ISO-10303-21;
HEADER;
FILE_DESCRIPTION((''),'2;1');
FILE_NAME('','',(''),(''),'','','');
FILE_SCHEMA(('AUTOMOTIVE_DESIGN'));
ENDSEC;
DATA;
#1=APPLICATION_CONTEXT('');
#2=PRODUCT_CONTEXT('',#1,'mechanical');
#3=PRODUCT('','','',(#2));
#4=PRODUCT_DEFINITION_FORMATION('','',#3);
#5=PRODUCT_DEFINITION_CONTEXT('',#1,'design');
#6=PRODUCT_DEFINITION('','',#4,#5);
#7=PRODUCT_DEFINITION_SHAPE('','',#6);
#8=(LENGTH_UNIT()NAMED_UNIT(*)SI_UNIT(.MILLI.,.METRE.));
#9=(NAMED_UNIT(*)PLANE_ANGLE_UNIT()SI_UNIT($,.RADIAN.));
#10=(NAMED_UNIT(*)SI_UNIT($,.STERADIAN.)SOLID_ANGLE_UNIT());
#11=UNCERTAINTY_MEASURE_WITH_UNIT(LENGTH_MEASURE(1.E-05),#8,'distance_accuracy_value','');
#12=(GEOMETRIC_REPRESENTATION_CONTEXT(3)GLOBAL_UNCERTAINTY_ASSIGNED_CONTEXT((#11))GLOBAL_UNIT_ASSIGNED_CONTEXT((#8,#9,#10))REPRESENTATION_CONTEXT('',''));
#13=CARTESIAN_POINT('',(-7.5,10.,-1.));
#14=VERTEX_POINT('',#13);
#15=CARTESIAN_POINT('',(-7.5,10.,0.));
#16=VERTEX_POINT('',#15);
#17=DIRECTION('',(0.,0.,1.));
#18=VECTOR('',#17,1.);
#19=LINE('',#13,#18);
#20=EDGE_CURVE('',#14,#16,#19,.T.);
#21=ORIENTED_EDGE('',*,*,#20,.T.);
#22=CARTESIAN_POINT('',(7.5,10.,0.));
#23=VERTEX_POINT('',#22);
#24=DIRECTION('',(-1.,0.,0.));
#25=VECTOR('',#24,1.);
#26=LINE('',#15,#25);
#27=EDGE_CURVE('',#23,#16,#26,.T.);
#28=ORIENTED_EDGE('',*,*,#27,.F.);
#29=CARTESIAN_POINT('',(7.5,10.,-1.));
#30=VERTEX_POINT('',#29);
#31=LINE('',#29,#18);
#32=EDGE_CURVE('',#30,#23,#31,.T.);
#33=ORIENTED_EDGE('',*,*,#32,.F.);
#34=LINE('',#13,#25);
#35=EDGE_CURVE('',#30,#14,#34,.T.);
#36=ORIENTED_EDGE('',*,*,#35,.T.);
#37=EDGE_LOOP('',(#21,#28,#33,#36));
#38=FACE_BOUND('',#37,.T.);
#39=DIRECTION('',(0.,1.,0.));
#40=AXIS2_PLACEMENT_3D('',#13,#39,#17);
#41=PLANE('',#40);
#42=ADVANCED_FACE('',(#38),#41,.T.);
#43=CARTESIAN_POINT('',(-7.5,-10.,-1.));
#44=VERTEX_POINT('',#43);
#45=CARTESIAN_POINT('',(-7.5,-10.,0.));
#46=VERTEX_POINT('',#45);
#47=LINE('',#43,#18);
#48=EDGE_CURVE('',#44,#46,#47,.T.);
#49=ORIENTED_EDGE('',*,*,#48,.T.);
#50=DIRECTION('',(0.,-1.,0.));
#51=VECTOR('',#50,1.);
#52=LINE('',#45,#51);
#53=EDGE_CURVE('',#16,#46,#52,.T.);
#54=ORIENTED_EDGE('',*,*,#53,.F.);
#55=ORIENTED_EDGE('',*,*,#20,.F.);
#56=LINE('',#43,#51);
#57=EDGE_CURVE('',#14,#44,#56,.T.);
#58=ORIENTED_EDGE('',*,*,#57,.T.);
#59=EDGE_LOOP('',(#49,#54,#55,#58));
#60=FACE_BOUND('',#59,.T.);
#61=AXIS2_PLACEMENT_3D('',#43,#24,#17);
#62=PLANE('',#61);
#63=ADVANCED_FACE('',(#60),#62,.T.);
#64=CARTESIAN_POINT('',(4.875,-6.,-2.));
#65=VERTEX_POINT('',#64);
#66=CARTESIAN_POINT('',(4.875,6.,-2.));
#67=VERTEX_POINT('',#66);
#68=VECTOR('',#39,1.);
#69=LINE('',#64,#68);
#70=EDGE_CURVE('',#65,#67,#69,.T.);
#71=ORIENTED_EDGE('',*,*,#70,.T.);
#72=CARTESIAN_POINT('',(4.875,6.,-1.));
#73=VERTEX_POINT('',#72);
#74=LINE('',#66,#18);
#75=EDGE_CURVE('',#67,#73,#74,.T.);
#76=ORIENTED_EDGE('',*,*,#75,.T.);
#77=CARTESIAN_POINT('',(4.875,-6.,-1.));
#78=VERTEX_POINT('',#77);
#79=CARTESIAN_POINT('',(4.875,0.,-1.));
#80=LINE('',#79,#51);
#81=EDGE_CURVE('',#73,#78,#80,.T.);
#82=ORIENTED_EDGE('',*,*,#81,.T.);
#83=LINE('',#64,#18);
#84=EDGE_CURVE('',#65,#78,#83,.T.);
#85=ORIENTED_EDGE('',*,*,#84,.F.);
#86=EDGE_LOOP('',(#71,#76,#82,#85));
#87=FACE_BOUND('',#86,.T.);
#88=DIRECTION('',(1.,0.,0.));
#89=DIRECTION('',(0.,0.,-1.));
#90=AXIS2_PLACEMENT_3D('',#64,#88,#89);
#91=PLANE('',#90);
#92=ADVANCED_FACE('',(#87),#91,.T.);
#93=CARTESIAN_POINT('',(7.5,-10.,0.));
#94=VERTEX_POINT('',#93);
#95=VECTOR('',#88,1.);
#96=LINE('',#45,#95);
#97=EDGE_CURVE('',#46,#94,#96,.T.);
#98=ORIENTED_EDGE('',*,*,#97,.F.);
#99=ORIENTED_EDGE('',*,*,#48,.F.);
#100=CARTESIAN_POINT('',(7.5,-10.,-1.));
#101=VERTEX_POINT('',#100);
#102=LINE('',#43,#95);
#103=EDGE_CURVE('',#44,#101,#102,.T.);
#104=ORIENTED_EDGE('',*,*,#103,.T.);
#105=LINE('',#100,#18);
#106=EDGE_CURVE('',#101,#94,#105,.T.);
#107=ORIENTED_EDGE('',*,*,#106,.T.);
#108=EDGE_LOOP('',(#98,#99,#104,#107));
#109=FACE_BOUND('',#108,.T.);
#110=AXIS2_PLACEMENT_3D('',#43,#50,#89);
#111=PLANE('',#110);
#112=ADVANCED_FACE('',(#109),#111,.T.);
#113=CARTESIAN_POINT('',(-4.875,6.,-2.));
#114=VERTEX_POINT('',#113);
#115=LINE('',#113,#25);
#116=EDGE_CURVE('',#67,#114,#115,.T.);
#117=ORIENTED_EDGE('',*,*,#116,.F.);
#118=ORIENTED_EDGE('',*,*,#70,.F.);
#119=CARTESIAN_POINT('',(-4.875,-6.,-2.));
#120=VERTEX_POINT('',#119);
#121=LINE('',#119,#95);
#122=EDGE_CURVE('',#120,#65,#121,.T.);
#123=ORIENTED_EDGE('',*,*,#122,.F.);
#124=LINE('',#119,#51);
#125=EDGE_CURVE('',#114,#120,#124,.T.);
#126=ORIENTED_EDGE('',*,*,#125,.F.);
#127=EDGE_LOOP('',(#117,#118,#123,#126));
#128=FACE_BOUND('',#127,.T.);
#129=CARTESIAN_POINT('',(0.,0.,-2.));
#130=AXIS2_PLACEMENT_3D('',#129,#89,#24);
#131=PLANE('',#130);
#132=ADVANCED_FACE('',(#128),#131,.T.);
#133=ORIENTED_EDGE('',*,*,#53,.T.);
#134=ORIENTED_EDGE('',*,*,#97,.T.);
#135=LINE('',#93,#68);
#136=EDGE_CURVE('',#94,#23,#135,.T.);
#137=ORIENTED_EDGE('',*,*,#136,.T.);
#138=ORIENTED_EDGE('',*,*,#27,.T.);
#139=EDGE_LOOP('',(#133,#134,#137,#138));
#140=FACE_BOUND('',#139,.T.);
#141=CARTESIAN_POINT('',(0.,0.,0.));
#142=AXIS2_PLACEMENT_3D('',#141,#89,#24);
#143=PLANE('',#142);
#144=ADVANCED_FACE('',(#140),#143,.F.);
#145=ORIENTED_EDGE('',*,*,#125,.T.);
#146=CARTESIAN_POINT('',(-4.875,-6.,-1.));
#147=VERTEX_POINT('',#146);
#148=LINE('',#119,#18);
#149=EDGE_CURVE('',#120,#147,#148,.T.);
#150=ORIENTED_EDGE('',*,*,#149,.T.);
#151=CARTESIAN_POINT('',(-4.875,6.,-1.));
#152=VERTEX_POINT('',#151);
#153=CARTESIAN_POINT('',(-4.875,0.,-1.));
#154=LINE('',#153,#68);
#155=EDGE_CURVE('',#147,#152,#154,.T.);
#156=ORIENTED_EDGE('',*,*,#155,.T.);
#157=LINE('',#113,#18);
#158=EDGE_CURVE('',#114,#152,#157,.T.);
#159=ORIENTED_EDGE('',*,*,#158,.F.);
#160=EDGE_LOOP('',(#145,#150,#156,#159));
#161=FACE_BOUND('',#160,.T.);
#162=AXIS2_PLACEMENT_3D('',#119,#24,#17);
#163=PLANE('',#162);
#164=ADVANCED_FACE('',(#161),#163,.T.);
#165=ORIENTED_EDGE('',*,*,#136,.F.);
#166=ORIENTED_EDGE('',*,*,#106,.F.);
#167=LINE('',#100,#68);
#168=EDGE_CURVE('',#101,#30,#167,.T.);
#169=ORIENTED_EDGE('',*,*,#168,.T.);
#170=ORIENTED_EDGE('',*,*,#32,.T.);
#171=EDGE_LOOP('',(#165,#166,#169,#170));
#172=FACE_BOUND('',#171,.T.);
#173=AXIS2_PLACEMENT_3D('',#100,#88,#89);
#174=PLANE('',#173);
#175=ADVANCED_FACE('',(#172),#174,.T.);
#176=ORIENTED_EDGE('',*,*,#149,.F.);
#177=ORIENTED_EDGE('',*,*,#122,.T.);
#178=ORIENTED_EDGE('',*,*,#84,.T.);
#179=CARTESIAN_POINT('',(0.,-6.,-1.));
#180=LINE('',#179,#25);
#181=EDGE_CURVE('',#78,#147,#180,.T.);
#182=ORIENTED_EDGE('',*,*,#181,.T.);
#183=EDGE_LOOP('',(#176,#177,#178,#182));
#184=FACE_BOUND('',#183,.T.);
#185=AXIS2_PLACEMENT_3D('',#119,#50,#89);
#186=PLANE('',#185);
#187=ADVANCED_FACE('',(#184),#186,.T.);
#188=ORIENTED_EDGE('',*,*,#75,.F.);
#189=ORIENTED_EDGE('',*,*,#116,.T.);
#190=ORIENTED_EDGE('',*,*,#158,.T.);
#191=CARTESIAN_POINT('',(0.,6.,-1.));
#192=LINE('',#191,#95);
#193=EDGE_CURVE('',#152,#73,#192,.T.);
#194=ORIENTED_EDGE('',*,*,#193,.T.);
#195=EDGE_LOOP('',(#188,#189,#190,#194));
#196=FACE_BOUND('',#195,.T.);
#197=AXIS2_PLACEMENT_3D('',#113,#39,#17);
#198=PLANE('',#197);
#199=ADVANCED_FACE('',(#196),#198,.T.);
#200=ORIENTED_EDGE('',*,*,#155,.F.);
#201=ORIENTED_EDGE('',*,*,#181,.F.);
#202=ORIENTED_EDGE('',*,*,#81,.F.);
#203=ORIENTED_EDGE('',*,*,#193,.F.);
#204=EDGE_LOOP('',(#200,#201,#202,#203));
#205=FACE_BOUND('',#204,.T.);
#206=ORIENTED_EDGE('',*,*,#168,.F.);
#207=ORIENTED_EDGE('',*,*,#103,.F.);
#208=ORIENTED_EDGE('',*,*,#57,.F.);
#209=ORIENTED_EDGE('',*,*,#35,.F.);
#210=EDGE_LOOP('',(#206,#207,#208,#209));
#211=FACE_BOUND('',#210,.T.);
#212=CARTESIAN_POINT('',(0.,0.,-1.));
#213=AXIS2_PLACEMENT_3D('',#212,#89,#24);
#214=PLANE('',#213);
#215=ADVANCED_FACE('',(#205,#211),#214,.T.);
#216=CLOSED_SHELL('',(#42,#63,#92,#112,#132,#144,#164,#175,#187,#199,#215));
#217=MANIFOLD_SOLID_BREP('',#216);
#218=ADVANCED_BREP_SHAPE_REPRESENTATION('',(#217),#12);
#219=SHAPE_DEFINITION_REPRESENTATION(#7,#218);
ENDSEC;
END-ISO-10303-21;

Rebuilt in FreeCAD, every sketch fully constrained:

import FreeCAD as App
import Part
import Sketcher


def add_polygon(sketch, points):
    """Adds a closed chain of lines whose ends are joined by coincident constraints."""
    first, n = sketch.GeometryCount, len(points)
    for a, b in zip(points, points[1:] + points[:1]):
        sketch.addGeometry(Part.LineSegment(App.Vector(*a, 0), App.Vector(*b, 0)), False)
    for i in range(n):
        sketch.addConstraint(Sketcher.Constraint("Coincident", first + i, 2, first + (i + 1) % n, 1))

doc = App.newDocument("Part")
body = doc.addObject("PartDesign::Body", "Body")

# Sketch on XY plane
sketch1 = body.newObject("Sketcher::SketchObject", "Sketch")
sketch1.AttachmentSupport = (doc.getObject("XY_Plane"), [""])
sketch1.MapMode = "FlatFace"
add_polygon(sketch1, [(-8, 10), (-8, -10), (8, -10), (8, 10)])  # lines 0-3
sketch1.addConstraint([
    Sketcher.Constraint("Vertical", 0),
    Sketcher.Constraint("Horizontal", 1),
    Sketcher.Constraint("Vertical", 2),
    Sketcher.Constraint("Horizontal", 3),
    Sketcher.Constraint("Symmetric", 0, 2, 2, 2, -1, 1),
    Sketcher.Constraint("DistanceX", 1, 1, 1, 2, 15.0),
    Sketcher.Constraint("DistanceY", 0, 2, 0, 1, 20.0),
])
pad1 = body.newObject("PartDesign::Pad", "Pad")
pad1.Profile = sketch1
pad1.Length = 1
pad1.Reversed = True

# Sketch on XY plane
sketch2 = body.newObject("Sketcher::SketchObject", "Sketch001")
sketch2.AttachmentSupport = (doc.getObject("XY_Plane"), [""])
sketch2.MapMode = "FlatFace"
add_polygon(sketch2, [(-5, 6), (-5, -6), (5, -6), (5, 6)])  # lines 0-3
sketch2.addConstraint([
    Sketcher.Constraint("Vertical", 0),
    Sketcher.Constraint("Horizontal", 1),
    Sketcher.Constraint("Vertical", 2),
    Sketcher.Constraint("Horizontal", 3),
    Sketcher.Constraint("Symmetric", 0, 2, 2, 2, -1, 1),
    Sketcher.Constraint("DistanceY", 0, 2, 0, 1, 12.0),
    Sketcher.Constraint("DistanceX", 1, 1, 1, 2, 9.75),
])
pad2 = body.newObject("PartDesign::Pad", "Pad001")
pad2.Profile = sketch2
pad2.Length = 2
pad2.Reversed = True

doc.recompute()
